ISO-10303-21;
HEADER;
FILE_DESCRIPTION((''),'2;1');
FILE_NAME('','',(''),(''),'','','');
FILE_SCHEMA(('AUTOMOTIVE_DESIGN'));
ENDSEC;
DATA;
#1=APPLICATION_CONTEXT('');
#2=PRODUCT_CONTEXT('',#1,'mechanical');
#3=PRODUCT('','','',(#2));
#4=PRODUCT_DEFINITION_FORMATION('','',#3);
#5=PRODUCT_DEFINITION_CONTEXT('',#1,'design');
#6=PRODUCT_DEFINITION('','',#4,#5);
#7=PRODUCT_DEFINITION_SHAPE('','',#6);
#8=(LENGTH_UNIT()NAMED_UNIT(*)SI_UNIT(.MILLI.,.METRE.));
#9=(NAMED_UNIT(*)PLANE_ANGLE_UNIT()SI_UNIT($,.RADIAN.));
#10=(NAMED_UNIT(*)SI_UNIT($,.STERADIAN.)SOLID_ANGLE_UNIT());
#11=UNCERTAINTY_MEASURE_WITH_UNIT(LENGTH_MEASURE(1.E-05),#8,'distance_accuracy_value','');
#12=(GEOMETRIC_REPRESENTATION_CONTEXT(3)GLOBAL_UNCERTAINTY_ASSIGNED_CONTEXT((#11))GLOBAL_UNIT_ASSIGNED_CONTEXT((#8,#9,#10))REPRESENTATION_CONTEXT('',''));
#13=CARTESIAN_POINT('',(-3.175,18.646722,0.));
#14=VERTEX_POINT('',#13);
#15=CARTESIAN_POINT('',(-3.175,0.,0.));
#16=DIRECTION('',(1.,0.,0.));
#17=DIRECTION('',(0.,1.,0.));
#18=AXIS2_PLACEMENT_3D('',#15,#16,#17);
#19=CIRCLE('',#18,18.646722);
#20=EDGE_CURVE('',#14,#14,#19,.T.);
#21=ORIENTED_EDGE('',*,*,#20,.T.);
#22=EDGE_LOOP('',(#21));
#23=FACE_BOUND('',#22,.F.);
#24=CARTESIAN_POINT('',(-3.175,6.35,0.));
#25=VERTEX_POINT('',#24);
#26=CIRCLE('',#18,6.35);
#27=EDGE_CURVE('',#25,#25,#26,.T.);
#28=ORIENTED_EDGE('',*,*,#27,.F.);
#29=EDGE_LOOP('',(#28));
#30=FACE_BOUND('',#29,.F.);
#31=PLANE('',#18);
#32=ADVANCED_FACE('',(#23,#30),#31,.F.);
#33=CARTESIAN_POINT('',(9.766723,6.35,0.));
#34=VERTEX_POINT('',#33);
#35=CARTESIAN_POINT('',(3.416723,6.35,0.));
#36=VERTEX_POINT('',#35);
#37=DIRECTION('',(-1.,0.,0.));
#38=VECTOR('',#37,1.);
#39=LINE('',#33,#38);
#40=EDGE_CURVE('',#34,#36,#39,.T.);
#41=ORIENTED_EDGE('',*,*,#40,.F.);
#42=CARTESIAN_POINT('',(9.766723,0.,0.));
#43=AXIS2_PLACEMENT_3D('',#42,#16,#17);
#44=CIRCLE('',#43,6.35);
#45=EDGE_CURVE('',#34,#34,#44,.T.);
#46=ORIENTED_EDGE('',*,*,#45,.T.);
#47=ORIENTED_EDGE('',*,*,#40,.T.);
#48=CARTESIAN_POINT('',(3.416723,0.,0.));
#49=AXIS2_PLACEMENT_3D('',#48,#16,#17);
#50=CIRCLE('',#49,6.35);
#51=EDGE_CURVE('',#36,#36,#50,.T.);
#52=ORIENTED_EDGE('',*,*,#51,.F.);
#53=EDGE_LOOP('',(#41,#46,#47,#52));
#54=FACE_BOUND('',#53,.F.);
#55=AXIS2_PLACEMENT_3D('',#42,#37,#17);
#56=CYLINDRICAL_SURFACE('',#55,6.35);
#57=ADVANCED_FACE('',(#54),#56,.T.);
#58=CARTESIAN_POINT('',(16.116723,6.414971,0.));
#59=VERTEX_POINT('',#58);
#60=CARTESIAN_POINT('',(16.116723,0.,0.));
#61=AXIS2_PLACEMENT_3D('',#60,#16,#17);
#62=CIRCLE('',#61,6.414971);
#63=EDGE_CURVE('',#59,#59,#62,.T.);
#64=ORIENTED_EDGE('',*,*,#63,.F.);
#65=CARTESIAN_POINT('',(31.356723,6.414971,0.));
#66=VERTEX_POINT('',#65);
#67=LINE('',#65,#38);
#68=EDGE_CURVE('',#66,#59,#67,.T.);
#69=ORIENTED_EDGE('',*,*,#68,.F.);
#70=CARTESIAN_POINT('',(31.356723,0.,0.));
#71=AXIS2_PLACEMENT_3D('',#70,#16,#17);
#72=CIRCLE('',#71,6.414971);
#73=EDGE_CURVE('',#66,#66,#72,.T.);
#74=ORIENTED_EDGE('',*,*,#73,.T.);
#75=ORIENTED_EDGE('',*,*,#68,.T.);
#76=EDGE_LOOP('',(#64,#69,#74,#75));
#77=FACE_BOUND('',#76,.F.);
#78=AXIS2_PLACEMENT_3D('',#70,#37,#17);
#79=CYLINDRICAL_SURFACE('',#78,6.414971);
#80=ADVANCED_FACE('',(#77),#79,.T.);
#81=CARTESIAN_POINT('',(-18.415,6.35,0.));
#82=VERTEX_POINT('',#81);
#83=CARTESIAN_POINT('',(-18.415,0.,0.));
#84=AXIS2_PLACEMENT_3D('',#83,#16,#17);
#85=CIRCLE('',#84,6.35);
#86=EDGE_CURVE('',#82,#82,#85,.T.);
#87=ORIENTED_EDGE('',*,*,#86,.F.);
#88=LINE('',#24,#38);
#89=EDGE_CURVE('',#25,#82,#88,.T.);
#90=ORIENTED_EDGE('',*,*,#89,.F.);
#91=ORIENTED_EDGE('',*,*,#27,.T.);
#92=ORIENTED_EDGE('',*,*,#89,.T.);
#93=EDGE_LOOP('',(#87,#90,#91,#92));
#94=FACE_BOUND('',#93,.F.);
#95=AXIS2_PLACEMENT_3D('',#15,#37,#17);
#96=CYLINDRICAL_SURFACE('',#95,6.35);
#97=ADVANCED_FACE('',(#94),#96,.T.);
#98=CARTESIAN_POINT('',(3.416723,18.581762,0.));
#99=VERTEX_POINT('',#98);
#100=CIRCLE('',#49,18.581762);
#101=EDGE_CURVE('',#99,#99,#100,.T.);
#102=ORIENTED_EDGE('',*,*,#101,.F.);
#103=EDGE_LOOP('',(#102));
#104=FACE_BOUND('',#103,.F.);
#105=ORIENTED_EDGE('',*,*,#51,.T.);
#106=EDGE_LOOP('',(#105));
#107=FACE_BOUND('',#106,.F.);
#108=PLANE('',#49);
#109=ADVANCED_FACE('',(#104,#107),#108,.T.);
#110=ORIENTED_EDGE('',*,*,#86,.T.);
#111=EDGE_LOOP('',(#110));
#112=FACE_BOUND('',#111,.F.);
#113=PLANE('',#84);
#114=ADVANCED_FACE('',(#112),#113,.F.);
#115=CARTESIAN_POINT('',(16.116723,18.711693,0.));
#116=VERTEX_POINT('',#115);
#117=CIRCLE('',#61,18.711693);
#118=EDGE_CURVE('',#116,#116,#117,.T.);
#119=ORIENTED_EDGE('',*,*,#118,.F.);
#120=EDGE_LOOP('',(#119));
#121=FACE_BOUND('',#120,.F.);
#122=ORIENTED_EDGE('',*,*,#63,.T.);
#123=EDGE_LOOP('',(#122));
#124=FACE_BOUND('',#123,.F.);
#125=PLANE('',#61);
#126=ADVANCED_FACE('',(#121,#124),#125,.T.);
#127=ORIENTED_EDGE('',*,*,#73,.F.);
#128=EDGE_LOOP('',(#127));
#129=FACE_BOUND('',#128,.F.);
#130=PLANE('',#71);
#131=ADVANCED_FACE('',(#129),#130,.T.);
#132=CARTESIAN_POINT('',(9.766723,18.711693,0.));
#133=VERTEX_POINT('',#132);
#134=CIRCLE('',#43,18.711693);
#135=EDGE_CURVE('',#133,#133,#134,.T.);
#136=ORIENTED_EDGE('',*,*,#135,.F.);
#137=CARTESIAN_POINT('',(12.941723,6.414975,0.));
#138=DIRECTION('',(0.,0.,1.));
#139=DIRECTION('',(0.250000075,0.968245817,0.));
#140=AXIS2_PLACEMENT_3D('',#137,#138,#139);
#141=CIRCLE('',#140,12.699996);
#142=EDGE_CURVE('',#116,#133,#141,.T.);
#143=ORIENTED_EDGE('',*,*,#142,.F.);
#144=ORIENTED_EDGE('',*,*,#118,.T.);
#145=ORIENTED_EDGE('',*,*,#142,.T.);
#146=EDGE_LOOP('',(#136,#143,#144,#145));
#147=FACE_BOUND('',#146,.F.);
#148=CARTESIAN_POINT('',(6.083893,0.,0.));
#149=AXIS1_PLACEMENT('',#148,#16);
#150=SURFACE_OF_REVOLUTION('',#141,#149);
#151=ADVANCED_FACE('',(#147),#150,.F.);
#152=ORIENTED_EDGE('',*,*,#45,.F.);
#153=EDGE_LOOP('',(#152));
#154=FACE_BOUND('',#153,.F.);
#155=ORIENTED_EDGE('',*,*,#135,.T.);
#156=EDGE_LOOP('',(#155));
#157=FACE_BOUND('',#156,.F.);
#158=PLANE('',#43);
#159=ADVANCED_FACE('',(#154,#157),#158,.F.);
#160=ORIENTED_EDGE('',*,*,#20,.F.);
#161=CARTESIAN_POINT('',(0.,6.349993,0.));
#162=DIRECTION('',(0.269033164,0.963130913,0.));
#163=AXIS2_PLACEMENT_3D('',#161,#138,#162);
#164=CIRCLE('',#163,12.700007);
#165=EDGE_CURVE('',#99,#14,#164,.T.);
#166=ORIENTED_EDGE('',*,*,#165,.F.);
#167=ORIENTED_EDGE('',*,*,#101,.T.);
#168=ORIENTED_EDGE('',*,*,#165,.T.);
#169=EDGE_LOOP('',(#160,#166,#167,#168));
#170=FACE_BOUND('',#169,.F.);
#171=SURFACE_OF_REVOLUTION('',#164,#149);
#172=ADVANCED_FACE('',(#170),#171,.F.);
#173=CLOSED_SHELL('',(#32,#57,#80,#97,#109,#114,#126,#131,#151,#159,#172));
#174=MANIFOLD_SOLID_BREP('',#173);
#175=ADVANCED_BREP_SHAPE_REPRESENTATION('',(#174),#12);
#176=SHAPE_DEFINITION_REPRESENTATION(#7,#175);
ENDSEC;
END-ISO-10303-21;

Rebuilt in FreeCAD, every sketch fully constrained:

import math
import FreeCAD as App
import Part
import Sketcher

V = App.Vector
Q = App.Units.Quantity

doc = App.newDocument("Part")
body = doc.addObject("PartDesign::Body", "Body")

sketch1 = body.newObject("Sketcher::SketchObject", "Sketch")
sketch1.AttachmentSupport = (doc.getObject("XY_Plane"), [""])
sketch1.MapMode = "FlatFace"
sketch1.addGeometry([
    Part.ArcOfCircle(Part.Circle(V(0, 6, 0), V(0, 0, 1), 13), math.radians(74), math.radians(104)),
    Part.LineSegment(V(-3, 19, 0), V(-3, 6, 0)),
    Part.LineSegment(V(-3, 6, 0), V(-18, 6, 0)),
    Part.LineSegment(V(-18, 6, 0), V(-18, 0, 0)),
    Part.LineSegment(V(-18, 0, 0), V(31, 0, 0)),
    Part.LineSegment(V(31, 0, 0), V(31, 6, 0)),
    Part.LineSegment(V(31, 6, 0), V(16, 6, 0)),
    Part.LineSegment(V(16, 6, 0), V(16, 19, 0)),
    Part.ArcOfCircle(Part.Circle(V(13, 6, 0), V(0, 0, 1), 13), math.radians(76), math.radians(104)),
    Part.LineSegment(V(10, 19, 0), V(10, 6, 0)),
    Part.LineSegment(V(10, 6, 0), V(3, 6, 0)),
    Part.LineSegment(V(3, 6, 0), V(3, 19, 0)),
], False)
sketch1.addConstraint([
    Sketcher.Constraint("Coincident", 0, 2, 1, 1),
    Sketcher.Constraint("Coincident", 1, 2, 2, 1),
    Sketcher.Constraint("Coincident", 2, 2, 3, 1),
    Sketcher.Constraint("Coincident", 3, 2, 4, 1),
    Sketcher.Constraint("Coincident", 4, 2, 5, 1),
    Sketcher.Constraint("Coincident", 5, 2, 6, 1),
    Sketcher.Constraint("Coincident", 6, 2, 7, 1),
    Sketcher.Constraint("Coincident", 7, 2, 8, 1),
    Sketcher.Constraint("Coincident", 8, 2, 9, 1),
    Sketcher.Constraint("Coincident", 9, 2, 10, 1),
    Sketcher.Constraint("Coincident", 10, 2, 11, 1),
    Sketcher.Constraint("Coincident", 11, 2, 0, 1),
    Sketcher.Constraint("Vertical", 1),
    Sketcher.Constraint("Horizontal", 2),
    Sketcher.Constraint("Vertical", 3),
    Sketcher.Constraint("Horizontal", 4),
    Sketcher.Constraint("Vertical", 5),
    Sketcher.Constraint("Horizontal", 6),
    Sketcher.Constraint("Vertical", 7),
    Sketcher.Constraint("Vertical", 9),
    Sketcher.Constraint("Horizontal", 10),
    Sketcher.Constraint("Vertical", 11),
    Sketcher.Constraint("PointOnObject", 0, 3, -2),
    Sketcher.Constraint("PointOnObject", 3, 2, -1),
    Sketcher.Constraint("Horizontal", 7, 2, 8, 2),
    Sketcher.Constraint("Horizontal", 2, 2, 9, 2),
    Sketcher.Constraint("Equal", 2, 6),
    Sketcher.Constraint("Equal", 10, 3),
    Sketcher.Constraint("Equal", 1, 7),
    Sketcher.Constraint("Radius", 8, Q("0.4999999 in")),
    Sketcher.Constraint("DistanceX", 2, 2, 2, 1, Q("0.6 in")),
    Sketcher.Constraint("DistanceX", 10, 2, 10, 1, Q("0.25 in")),
    Sketcher.Constraint("DistanceX", 10, 2, 6, 2, Q("0.5 in")),
    Sketcher.Constraint("DistanceX", 0, 2, -1, 1, Q("0.125 in")),
    Sketcher.Constraint("Radius", 0, Q("12.700007 mm")),
    Sketcher.Constraint("DistanceY", 5, 1, 5, 2, Q("6.414971 mm")),
    Sketcher.Constraint("DistanceY", 7, 1, 7, 2, Q("12.296722 mm")),
    Sketcher.Constraint("DistanceX", 4, 1, 4, 2, Q("49.771723 mm")),
])
revolution = body.newObject("PartDesign::Revolution", "Revolution")
revolution.Profile = sketch1
revolution.ReferenceAxis = (sketch1, ["H_Axis"])
revolution.Angle = 360

doc.recompute()
